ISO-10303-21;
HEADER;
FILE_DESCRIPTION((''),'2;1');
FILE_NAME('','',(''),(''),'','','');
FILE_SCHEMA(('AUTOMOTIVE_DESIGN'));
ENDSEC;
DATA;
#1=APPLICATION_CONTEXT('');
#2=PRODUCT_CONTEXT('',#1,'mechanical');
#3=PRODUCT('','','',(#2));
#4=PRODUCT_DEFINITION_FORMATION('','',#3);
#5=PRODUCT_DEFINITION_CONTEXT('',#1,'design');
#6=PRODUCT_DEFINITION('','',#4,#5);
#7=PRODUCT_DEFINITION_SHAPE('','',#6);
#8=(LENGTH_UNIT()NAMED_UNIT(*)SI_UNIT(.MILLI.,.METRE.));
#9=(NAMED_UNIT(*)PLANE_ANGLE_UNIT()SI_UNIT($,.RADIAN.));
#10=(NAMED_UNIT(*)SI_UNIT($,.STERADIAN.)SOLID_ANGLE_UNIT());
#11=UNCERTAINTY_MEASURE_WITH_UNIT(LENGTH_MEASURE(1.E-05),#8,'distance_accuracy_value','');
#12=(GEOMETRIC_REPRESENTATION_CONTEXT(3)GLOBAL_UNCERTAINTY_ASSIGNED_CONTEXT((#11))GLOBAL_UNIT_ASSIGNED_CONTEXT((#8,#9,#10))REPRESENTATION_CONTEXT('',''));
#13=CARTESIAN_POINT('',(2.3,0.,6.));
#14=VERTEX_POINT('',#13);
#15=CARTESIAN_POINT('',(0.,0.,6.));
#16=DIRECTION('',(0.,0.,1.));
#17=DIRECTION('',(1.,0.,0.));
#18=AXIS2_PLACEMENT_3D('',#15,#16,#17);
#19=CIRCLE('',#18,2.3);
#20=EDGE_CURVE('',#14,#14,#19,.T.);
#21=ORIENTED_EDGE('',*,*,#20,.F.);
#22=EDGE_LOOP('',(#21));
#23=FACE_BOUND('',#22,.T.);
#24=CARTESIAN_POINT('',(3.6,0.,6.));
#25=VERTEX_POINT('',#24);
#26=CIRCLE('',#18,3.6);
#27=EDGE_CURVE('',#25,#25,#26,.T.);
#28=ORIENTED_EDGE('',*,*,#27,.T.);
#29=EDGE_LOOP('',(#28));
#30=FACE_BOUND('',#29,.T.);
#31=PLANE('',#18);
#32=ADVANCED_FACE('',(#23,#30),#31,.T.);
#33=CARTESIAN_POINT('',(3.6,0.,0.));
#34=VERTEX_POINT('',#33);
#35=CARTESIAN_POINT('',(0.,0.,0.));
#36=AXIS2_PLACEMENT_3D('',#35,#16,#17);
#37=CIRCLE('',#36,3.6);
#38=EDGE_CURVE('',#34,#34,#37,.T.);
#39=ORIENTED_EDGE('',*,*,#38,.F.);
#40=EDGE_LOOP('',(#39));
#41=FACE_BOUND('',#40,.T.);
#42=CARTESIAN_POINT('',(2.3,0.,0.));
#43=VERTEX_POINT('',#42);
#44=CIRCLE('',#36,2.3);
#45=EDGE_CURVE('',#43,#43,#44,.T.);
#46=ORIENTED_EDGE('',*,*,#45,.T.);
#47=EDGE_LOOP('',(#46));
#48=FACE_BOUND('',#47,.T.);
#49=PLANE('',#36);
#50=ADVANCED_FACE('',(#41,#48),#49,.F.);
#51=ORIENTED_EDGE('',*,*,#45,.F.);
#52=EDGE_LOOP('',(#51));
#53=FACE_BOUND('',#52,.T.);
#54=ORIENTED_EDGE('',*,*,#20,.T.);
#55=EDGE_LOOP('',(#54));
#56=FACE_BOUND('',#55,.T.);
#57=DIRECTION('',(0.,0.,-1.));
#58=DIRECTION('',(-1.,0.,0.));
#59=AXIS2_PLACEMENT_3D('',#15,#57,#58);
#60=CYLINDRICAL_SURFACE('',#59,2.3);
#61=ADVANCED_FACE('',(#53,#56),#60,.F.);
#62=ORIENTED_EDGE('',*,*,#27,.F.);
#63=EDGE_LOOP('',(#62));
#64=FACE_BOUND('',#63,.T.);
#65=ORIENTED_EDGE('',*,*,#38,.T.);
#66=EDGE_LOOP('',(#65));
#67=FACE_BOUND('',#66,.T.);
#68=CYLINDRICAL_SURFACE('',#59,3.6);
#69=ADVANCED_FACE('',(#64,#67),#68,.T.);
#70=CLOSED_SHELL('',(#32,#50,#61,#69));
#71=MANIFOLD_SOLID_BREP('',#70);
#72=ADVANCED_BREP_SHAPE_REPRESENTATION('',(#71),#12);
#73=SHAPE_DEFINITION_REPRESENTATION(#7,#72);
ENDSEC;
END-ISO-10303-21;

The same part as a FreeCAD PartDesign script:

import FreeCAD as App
import Part
import Sketcher
Q = App.Units.Quantity

doc = App.newDocument("Part")
params = doc.addObject("Spreadsheet::Sheet", "Params")
for row, (alias, value) in enumerate([
    ("sketch1_diameter", "7.2 mm"),
    ("sketch1_diameter2", "4.6 mm"),
    ("pad1_length", "6 mm"),
], start=1):
    params.set(f"A{row}", alias)
    params.set(f"B{row}", "=" + value)
    params.setAlias(f"B{row}", alias)

body = doc.addObject("PartDesign::Body", "Body")

# Sketch on XY plane
sketch1 = body.newObject("Sketcher::SketchObject", "Sketch")
sketch1.AttachmentSupport = (doc.getObject("XY_Plane"), [""])
sketch1.MapMode = "FlatFace"
sketch1.addGeometry(Part.Circle(App.Vector(0, 0, 0), App.Vector(0, 0, 1), 3.6), False)
sketch1.addGeometry(Part.Circle(App.Vector(0, 0, 0), App.Vector(0, 0, 1), 2.3), False)
sketch1.addConstraint(Sketcher.Constraint("Coincident", 0, 3, -1, 1))
sketch1.addConstraint(Sketcher.Constraint("Coincident", 1, 3, -1, 1))
sketch1.addConstraint(Sketcher.Constraint("Diameter", 0, Q("7.2 mm")))
sketch1.addConstraint(Sketcher.Constraint("Diameter", 1, Q("4.6 mm")))
sketch1.setExpression("Constraints[2]", "Params.sketch1_diameter")
sketch1.setExpression("Constraints[3]", "Params.sketch1_diameter2")
pad1 = body.newObject("PartDesign::Pad", "Pad")
pad1.Profile = sketch1
pad1.setExpression("Length", "Params.pad1_length")

doc.recompute()
